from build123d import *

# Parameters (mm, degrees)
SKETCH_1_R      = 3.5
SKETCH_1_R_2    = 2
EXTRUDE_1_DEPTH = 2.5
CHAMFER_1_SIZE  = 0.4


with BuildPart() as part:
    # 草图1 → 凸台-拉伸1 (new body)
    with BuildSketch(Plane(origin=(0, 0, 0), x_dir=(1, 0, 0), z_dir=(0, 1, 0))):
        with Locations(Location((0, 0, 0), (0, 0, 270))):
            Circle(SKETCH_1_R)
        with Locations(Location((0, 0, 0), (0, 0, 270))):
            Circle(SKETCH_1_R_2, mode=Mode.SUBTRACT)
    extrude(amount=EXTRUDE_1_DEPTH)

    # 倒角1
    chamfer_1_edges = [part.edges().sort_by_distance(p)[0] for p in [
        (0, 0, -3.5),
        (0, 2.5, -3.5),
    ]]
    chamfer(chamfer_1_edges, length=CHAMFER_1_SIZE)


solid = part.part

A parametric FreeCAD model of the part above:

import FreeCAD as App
import Part
import Sketcher


def edges_at(feature, points):
    """Names of the edges that pass closest to the given points."""
    edges = feature.Shape.Edges
    near = lambda p: min(range(len(edges)), key=lambda i: edges[i].distToShape(Part.Vertex(*p))[0])
    return sorted({f"Edge{near(p) + 1}" for p in points})

doc = App.newDocument("Part")
body = doc.addObject("PartDesign::Body", "Body")

# Sketch on XZ plane
sketch1 = body.newObject("Sketcher::SketchObject", "Sketch")
sketch1.AttachmentSupport = (doc.getObject("XZ_Plane"), [""])
sketch1.MapMode = "FlatFace"
sketch1.addGeometry([
    Part.Circle(App.Vector(0, 0, 0), App.Vector(0, 0, 1), 3.5),
    Part.Circle(App.Vector(0, 0, 0), App.Vector(0, 0, 1), 2),
], False)
sketch1.addConstraint([
    Sketcher.Constraint("Coincident", 0, 3, -1, 1),
    Sketcher.Constraint("Coincident", 1, 3, -1, 1),
    Sketcher.Constraint("Diameter", 0, 7.0),
    Sketcher.Constraint("Diameter", 1, 4.0),
])
pad1 = body.newObject("PartDesign::Pad", "Pad")
pad1.Profile = sketch1
pad1.Length = 2.5
pad1.Reversed = True
doc.recompute()

chamfer = body.newObject("PartDesign::Chamfer", "Chamfer")
chamfer.Base = (pad1, edges_at(pad1, [(0, 0, -3.5), (0, 2.5, -3.5)]))
chamfer.Size = 0.4

doc.recompute()
